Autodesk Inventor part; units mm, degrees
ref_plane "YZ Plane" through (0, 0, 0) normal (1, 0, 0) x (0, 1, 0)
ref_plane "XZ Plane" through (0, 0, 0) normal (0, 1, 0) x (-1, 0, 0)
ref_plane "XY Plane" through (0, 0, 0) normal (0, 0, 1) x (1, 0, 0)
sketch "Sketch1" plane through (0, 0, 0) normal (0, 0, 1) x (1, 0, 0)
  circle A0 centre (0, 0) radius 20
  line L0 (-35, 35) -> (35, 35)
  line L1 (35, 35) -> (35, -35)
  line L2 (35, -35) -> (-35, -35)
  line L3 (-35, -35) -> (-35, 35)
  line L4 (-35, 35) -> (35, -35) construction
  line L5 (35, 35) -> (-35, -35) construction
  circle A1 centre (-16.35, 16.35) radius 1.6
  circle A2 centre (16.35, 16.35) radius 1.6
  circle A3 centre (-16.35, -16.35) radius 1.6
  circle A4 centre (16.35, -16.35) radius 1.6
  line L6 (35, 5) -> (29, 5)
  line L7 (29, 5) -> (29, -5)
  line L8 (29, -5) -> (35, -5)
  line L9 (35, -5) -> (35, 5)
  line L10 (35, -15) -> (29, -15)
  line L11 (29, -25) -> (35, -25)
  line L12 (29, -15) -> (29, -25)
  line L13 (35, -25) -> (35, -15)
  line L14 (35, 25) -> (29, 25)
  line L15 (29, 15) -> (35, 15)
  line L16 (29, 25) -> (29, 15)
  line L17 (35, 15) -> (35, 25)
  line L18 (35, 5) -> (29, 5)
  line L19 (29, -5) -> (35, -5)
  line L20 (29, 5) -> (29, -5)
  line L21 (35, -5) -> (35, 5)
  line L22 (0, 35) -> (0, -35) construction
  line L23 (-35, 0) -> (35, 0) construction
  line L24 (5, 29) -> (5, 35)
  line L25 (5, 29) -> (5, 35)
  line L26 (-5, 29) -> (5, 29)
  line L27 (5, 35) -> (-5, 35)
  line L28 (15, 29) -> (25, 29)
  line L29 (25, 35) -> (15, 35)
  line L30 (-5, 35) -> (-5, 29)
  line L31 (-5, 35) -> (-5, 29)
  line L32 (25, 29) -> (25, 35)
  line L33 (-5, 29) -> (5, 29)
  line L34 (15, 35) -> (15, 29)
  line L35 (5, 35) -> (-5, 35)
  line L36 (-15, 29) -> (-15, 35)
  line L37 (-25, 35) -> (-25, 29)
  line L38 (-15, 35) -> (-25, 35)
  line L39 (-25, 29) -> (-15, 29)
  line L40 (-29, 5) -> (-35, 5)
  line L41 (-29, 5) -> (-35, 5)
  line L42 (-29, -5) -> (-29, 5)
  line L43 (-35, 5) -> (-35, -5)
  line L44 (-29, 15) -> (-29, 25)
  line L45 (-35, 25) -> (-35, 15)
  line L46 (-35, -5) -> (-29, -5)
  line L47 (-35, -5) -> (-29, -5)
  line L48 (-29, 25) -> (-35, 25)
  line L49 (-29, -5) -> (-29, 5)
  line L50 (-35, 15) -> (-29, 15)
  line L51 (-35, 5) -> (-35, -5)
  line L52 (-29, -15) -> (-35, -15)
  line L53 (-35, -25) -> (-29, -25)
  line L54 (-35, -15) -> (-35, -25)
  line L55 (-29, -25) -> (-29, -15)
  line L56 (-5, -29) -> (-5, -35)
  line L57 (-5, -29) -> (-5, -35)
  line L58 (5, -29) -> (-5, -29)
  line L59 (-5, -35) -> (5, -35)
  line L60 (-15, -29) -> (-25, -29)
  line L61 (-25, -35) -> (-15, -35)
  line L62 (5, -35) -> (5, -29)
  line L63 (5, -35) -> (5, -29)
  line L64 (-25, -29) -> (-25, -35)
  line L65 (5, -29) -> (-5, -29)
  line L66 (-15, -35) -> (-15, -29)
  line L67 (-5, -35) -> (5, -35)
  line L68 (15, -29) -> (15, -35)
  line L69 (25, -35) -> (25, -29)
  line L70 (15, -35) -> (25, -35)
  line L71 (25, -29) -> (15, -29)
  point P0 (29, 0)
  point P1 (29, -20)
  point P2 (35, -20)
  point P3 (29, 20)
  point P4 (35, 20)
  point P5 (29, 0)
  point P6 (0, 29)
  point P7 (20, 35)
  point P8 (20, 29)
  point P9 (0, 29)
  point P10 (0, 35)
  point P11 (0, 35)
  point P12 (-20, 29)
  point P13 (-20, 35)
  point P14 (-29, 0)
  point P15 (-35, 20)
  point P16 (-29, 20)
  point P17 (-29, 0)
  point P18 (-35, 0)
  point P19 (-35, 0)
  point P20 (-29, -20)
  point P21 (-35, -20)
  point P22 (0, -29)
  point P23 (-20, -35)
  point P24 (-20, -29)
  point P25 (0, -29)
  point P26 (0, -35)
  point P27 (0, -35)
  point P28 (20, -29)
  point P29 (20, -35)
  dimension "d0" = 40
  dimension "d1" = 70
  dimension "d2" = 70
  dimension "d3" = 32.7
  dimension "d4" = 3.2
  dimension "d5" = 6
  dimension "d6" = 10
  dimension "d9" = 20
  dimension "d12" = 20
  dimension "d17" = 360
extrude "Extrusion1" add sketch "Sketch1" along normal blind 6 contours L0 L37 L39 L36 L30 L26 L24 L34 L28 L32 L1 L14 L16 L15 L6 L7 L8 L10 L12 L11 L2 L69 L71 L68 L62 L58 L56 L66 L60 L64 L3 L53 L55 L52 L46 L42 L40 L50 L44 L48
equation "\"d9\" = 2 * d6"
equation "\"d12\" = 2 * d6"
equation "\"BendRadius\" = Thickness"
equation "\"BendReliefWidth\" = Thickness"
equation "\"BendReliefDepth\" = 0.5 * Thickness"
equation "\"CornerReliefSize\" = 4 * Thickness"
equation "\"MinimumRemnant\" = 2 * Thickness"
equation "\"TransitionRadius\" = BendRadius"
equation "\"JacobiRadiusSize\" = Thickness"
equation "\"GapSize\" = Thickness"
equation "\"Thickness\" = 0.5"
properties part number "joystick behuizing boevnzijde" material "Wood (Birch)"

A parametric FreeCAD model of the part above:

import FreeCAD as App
import Part
import Sketcher

doc = App.newDocument("Part")
body = doc.addObject("PartDesign::Body", "Body")

# Sketch on XY plane
sketch1 = body.newObject("Sketcher::SketchObject", "Sketch")
sketch1.AttachmentSupport = (doc.getObject("XY_Plane"), [""])
sketch1.MapMode = "FlatFace"
sketch1.addGeometry([
    Part.LineSegment(App.Vector(-25, 35, 0), App.Vector(-35, 35, 0)),  # 0
    Part.LineSegment(App.Vector(-35, 35, 0), App.Vector(-35, 25, 0)),  # 1
    Part.LineSegment(App.Vector(-35, 25, 0), App.Vector(-29, 25, 0)),  # 2
    Part.LineSegment(App.Vector(-29, 25, 0), App.Vector(-29, 15, 0)),  # 3
    Part.LineSegment(App.Vector(-29, 15, 0), App.Vector(-35, 15, 0)),  # 4
    Part.LineSegment(App.Vector(-35, 15, 0), App.Vector(-35, 5, 0)),  # 5
    Part.LineSegment(App.Vector(-35, 5, 0), App.Vector(-29, 5, 0)),  # 6
    Part.LineSegment(App.Vector(-29, 5, 0), App.Vector(-29, -5, 0)),  # 7
    Part.LineSegment(App.Vector(-29, -5, 0), App.Vector(-35, -5, 0)),  # 8
    Part.LineSegment(App.Vector(-35, -5, 0), App.Vector(-35, -15, 0)),  # 9
    Part.LineSegment(App.Vector(-35, -15, 0), App.Vector(-29, -15, 0)),  # 10
    Part.LineSegment(App.Vector(-29, -15, 0), App.Vector(-29, -25, 0)),  # 11
    Part.LineSegment(App.Vector(-29, -25, 0), App.Vector(-35, -25, 0)),  # 12
    Part.LineSegment(App.Vector(-35, -25, 0), App.Vector(-35, -35, 0)),  # 13
    Part.LineSegment(App.Vector(-35, -35, 0), App.Vector(-25, -35, 0)),  # 14
    Part.LineSegment(App.Vector(-25, -35, 0), App.Vector(-25, -29, 0)),  # 15
    Part.LineSegment(App.Vector(-25, -29, 0), App.Vector(-15, -29, 0)),  # 16
    Part.LineSegment(App.Vector(-15, -29, 0), App.Vector(-15, -35, 0)),  # 17
    Part.LineSegment(App.Vector(-15, -35, 0), App.Vector(-5, -35, 0)),  # 18
    Part.LineSegment(App.Vector(-5, -35, 0), App.Vector(-5, -29, 0)),  # 19
    Part.LineSegment(App.Vector(-5, -29, 0), App.Vector(5, -29, 0)),  # 20
    Part.LineSegment(App.Vector(5, -29, 0), App.Vector(5, -35, 0)),  # 21
    Part.LineSegment(App.Vector(5, -35, 0), App.Vector(15, -35, 0)),  # 22
    Part.LineSegment(App.Vector(15, -35, 0), App.Vector(15, -29, 0)),  # 23
    Part.LineSegment(App.Vector(15, -29, 0), App.Vector(25, -29, 0)),  # 24
    Part.LineSegment(App.Vector(25, -29, 0), App.Vector(25, -35, 0)),  # 25
    Part.LineSegment(App.Vector(25, -35, 0), App.Vector(35, -35, 0)),  # 26
    Part.LineSegment(App.Vector(35, -35, 0), App.Vector(35, -25, 0)),  # 27
    Part.LineSegment(App.Vector(35, -25, 0), App.Vector(29, -25, 0)),  # 28
    Part.LineSegment(App.Vector(29, -25, 0), App.Vector(29, -15, 0)),  # 29
    Part.LineSegment(App.Vector(29, -15, 0), App.Vector(35, -15, 0)),  # 30
    Part.LineSegment(App.Vector(35, -15, 0), App.Vector(35, -5, 0)),  # 31
    Part.LineSegment(App.Vector(35, -5, 0), App.Vector(29, -5, 0)),  # 32
    Part.LineSegment(App.Vector(29, -5, 0), App.Vector(29, 5, 0)),  # 33
    Part.LineSegment(App.Vector(29, 5, 0), App.Vector(35, 5, 0)),  # 34
    Part.LineSegment(App.Vector(35, 5, 0), App.Vector(35, 15, 0)),  # 35
    Part.LineSegment(App.Vector(35, 15, 0), App.Vector(29, 15, 0)),  # 36
    Part.LineSegment(App.Vector(29, 15, 0), App.Vector(29, 25, 0)),  # 37
    Part.LineSegment(App.Vector(29, 25, 0), App.Vector(35, 25, 0)),  # 38
    Part.LineSegment(App.Vector(35, 25, 0), App.Vector(35, 35, 0)),  # 39
    Part.LineSegment(App.Vector(35, 35, 0), App.Vector(25, 35, 0)),  # 40
    Part.LineSegment(App.Vector(25, 35, 0), App.Vector(25, 29, 0)),  # 41
    Part.LineSegment(App.Vector(25, 29, 0), App.Vector(15, 29, 0)),  # 42
    Part.LineSegment(App.Vector(15, 29, 0), App.Vector(15, 35, 0)),  # 43
    Part.LineSegment(App.Vector(15, 35, 0), App.Vector(5, 35, 0)),  # 44
    Part.LineSegment(App.Vector(5, 35, 0), App.Vector(5, 29, 0)),  # 45
    Part.LineSegment(App.Vector(5, 29, 0), App.Vector(-5, 29, 0)),  # 46
    Part.LineSegment(App.Vector(-5, 29, 0), App.Vector(-5, 35, 0)),  # 47
    Part.LineSegment(App.Vector(-5, 35, 0), App.Vector(-15, 35, 0)),  # 48
    Part.LineSegment(App.Vector(-15, 35, 0), App.Vector(-15, 29, 0)),  # 49
    Part.LineSegment(App.Vector(-15, 29, 0), App.Vector(-25, 29, 0)),  # 50
    Part.LineSegment(App.Vector(-25, 29, 0), App.Vector(-25, 35, 0)),  # 51
    Part.Circle(App.Vector(-16.35, -16.35, 0), App.Vector(0, 0, 1), 1.6),  # 52
    Part.Circle(App.Vector(16.35, -16.35, 0), App.Vector(0, 0, 1), 1.6),  # 53
    Part.Circle(App.Vector(-16.35, 16.35, 0), App.Vector(0, 0, 1), 1.6),  # 54
    Part.Circle(App.Vector(0, 0, 0), App.Vector(0, 0, 1), 20),  # 55
    Part.Circle(App.Vector(16.35, 16.35, 0), App.Vector(0, 0, 1), 1.6),  # 56
], False)
sketch1.addConstraint([
    Sketcher.Constraint("Coincident", 0, 2, 1, 1),
    Sketcher.Constraint("Coincident", 1, 2, 2, 1),
    Sketcher.Constraint("Coincident", 2, 2, 3, 1),
    Sketcher.Constraint("Coincident", 3, 2, 4, 1),
    Sketcher.Constraint("Coincident", 4, 2, 5, 1),
    Sketcher.Constraint("Coincident", 5, 2, 6, 1),
    Sketcher.Constraint("Coincident", 6, 2, 7, 1),
    Sketcher.Constraint("Coincident", 7, 2, 8, 1),
    Sketcher.Constraint("Coincident", 8, 2, 9, 1),
    Sketcher.Constraint("Coincident", 9, 2, 10, 1),
    Sketcher.Constraint("Coincident", 10, 2, 11, 1),
    Sketcher.Constraint("Coincident", 11, 2, 12, 1),
    Sketcher.Constraint("Coincident", 12, 2, 13, 1),
    Sketcher.Constraint("Coincident", 13, 2, 14, 1),
    Sketcher.Constraint("Coincident", 14, 2, 15, 1),
    Sketcher.Constraint("Coincident", 15, 2, 16, 1),
    Sketcher.Constraint("Coincident", 16, 2, 17, 1),
    Sketcher.Constraint("Coincident", 17, 2, 18, 1),
    Sketcher.Constraint("Coincident", 18, 2, 19, 1),
    Sketcher.Constraint("Coincident", 19, 2, 20, 1),
    Sketcher.Constraint("Coincident", 20, 2, 21, 1),
    Sketcher.Constraint("Coincident", 21, 2, 22, 1),
    Sketcher.Constraint("Coincident", 22, 2, 23, 1),
    Sketcher.Constraint("Coincident", 23, 2, 24, 1),
    Sketcher.Constraint("Coincident", 24, 2, 25, 1),
    Sketcher.Constraint("Coincident", 25, 2, 26, 1),
    Sketcher.Constraint("Coincident", 26, 2, 27, 1),
    Sketcher.Constraint("Coincident", 27, 2, 28, 1),
    Sketcher.Constraint("Coincident", 28, 2, 29, 1),
    Sketcher.Constraint("Coincident", 29, 2, 30, 1),
    Sketcher.Constraint("Coincident", 30, 2, 31, 1),
    Sketcher.Constraint("Coincident", 31, 2, 32, 1),
    Sketcher.Constraint("Coincident", 32, 2, 33, 1),
    Sketcher.Constraint("Coincident", 33, 2, 34, 1),
    Sketcher.Constraint("Coincident", 34, 2, 35, 1),
    Sketcher.Constraint("Coincident", 35, 2, 36, 1),
    Sketcher.Constraint("Coincident", 36, 2, 37, 1),
    Sketcher.Constraint("Coincident", 37, 2, 38, 1),
    Sketcher.Constraint("Coincident", 38, 2, 39, 1),
    Sketcher.Constraint("Coincident", 39, 2, 40, 1),
    Sketcher.Constraint("Coincident", 40, 2, 41, 1),
    Sketcher.Constraint("Coincident", 41, 2, 42, 1),
    Sketcher.Constraint("Coincident", 42, 2, 43, 1),
    Sketcher.Constraint("Coincident", 43, 2, 44, 1),
    Sketcher.Constraint("Coincident", 44, 2, 45, 1),
    Sketcher.Constraint("Coincident", 45, 2, 46, 1),
    Sketcher.Constraint("Coincident", 46, 2, 47, 1),
    Sketcher.Constraint("Coincident", 47, 2, 48, 1),
    Sketcher.Constraint("Coincident", 48, 2, 49, 1),
    Sketcher.Constraint("Coincident", 49, 2, 50, 1),
    Sketcher.Constraint("Coincident", 50, 2, 51, 1),
    Sketcher.Constraint("Coincident", 51, 2, 0, 1),
    Sketcher.Constraint("Horizontal", 0),
    Sketcher.Constraint("Vertical", 1),
    Sketcher.Constraint("Horizontal", 2),
    Sketcher.Constraint("Vertical", 3),
    Sketcher.Constraint("Horizontal", 4),
    Sketcher.Constraint("Vertical", 5),
    Sketcher.Constraint("Horizontal", 6),
    Sketcher.Constraint("Vertical", 7),
    Sketcher.Constraint("Horizontal", 8),
    Sketcher.Constraint("Vertical", 9),
    Sketcher.Constraint("Horizontal", 10),
    Sketcher.Constraint("Vertical", 11),
    Sketcher.Constraint("Horizontal", 12),
    Sketcher.Constraint("Vertical", 13),
    Sketcher.Constraint("Horizontal", 14),
    Sketcher.Constraint("Vertical", 15),
    Sketcher.Constraint("Horizontal", 16),
    Sketcher.Constraint("Vertical", 17),
    Sketcher.Constraint("Horizontal", 18),
    Sketcher.Constraint("Vertical", 19),
    Sketcher.Constraint("Horizontal", 20),
    Sketcher.Constraint("Vertical", 21),
    Sketcher.Constraint("Horizontal", 22),
    Sketcher.Constraint("Vertical", 23),
    Sketcher.Constraint("Horizontal", 24),
    Sketcher.Constraint("Vertical", 25),
    Sketcher.Constraint("Horizontal", 26),
    Sketcher.Constraint("Vertical", 27),
    Sketcher.Constraint("Horizontal", 28),
    Sketcher.Constraint("Vertical", 29),
    Sketcher.Constraint("Horizontal", 30),
    Sketcher.Constraint("Vertical", 31),
    Sketcher.Constraint("Horizontal", 32),
    Sketcher.Constraint("Vertical", 33),
    Sketcher.Constraint("Horizontal", 34),
    Sketcher.Constraint("Vertical", 35),
    Sketcher.Constraint("Horizontal", 36),
    Sketcher.Constraint("Vertical", 37),
    Sketcher.Constraint("Horizontal", 38),
    Sketcher.Constraint("Vertical", 39),
    Sketcher.Constraint("Horizontal", 40),
    Sketcher.Constraint("Vertical", 41),
    Sketcher.Constraint("Horizontal", 42),
    Sketcher.Constraint("Vertical", 43),
    Sketcher.Constraint("Horizontal", 44),
    Sketcher.Constraint("Vertical", 45),
    Sketcher.Constraint("Horizontal", 46),
    Sketcher.Constraint("Vertical", 47),
    Sketcher.Constraint("Horizontal", 48),
    Sketcher.Constraint("Vertical", 49),
    Sketcher.Constraint("Horizontal", 50),
    Sketcher.Constraint("Vertical", 51),
    Sketcher.Constraint("Coincident", 55, 3, -1, 1),
    Sketcher.Constraint("Equal", 52, 53),
    Sketcher.Constraint("Equal", 53, 54),
    Sketcher.Constraint("Equal", 54, 56),
    Sketcher.Constraint("Symmetric", 53, 3, 54, 3, -1, 1),
    Sketcher.Constraint("Symmetric", 52, 3, 56, 3, -1, 1),
    Sketcher.Constraint("Symmetric", 0, 2, 26, 2, -1, 1),
    Sketcher.Constraint("Symmetric", 2, 2, 28, 2, -1, 1),
    Sketcher.Constraint("Symmetric", 4, 2, 30, 2, -1, 1),
    Sketcher.Constraint("Symmetric", 6, 2, 32, 2, -1, 1),
    Sketcher.Constraint("Symmetric", 8, 2, 34, 2, -1, 1),
    Sketcher.Constraint("Symmetric", 10, 2, 36, 2, -1, 1),
    Sketcher.Constraint("Symmetric", 12, 2, 38, 2, -1, 1),
    Sketcher.Constraint("Symmetric", 14, 2, 40, 2, -1, 1),
    Sketcher.Constraint("Symmetric", 16, 2, 42, 2, -1, 1),
    Sketcher.Constraint("Symmetric", 18, 2, 44, 2, -1, 1),
    Sketcher.Constraint("Symmetric", 20, 2, 46, 2, -1, 1),
    Sketcher.Constraint("Symmetric", 22, 2, 48, 2, -1, 1),
    Sketcher.Constraint("Symmetric", 24, 2, 50, 2, -1, 1),
    Sketcher.Constraint("Symmetric", 52, 3, 53, 3, -2),
    Sketcher.Constraint("Symmetric", 18, 2, 21, 2, -2),
    Sketcher.Constraint("Symmetric", 16, 2, 23, 2, -2),
    Sketcher.Constraint("Symmetric", 14, 2, 25, 2, -2),
    Sketcher.Constraint("Symmetric", 12, 2, 27, 2, -2),
    Sketcher.Constraint("Symmetric", 10, 2, 29, 2, -2),
    Sketcher.Constraint("Symmetric", 8, 2, 31, 2, -2),
    Sketcher.Constraint("Horizontal", 14, 2, 17, 2),
    Sketcher.Constraint("Horizontal", 16, 2, 19, 2),
    Sketcher.Constraint("Vertical", 1, 2, 4, 2),
    Sketcher.Constraint("Vertical", 3, 2, 6, 2),
    Sketcher.Constraint("Equal", 14, 16),
    Sketcher.Constraint("Equal", 16, 18),
    Sketcher.Constraint("Equal", 18, 20),
    Sketcher.Constraint("Equal", 50, 1),
    Sketcher.Constraint("Equal", 1, 3),
    Sketcher.Constraint("Equal", 3, 5),
    Sketcher.Constraint("Equal", 5, 7),
    Sketcher.Constraint("Equal", 38, 15),
    Sketcher.Constraint("Diameter", 55, 40.0),
    Sketcher.Constraint("Diameter", 52, 3.2),
    Sketcher.Constraint("DistanceX", 0, 2, 0, 1, 10.0),
    Sketcher.Constraint("DistanceX", 2, 1, 2, 2, 6.0),
    Sketcher.Constraint("DistanceX", 52, 3, 53, 3, 32.7),
    Sketcher.Constraint("DistanceY", 52, 3, 54, 3, 32.7),
])
pad1 = body.newObject("PartDesign::Pad", "Pad")
pad1.Profile = sketch1
pad1.Length = 6

doc.recompute()
